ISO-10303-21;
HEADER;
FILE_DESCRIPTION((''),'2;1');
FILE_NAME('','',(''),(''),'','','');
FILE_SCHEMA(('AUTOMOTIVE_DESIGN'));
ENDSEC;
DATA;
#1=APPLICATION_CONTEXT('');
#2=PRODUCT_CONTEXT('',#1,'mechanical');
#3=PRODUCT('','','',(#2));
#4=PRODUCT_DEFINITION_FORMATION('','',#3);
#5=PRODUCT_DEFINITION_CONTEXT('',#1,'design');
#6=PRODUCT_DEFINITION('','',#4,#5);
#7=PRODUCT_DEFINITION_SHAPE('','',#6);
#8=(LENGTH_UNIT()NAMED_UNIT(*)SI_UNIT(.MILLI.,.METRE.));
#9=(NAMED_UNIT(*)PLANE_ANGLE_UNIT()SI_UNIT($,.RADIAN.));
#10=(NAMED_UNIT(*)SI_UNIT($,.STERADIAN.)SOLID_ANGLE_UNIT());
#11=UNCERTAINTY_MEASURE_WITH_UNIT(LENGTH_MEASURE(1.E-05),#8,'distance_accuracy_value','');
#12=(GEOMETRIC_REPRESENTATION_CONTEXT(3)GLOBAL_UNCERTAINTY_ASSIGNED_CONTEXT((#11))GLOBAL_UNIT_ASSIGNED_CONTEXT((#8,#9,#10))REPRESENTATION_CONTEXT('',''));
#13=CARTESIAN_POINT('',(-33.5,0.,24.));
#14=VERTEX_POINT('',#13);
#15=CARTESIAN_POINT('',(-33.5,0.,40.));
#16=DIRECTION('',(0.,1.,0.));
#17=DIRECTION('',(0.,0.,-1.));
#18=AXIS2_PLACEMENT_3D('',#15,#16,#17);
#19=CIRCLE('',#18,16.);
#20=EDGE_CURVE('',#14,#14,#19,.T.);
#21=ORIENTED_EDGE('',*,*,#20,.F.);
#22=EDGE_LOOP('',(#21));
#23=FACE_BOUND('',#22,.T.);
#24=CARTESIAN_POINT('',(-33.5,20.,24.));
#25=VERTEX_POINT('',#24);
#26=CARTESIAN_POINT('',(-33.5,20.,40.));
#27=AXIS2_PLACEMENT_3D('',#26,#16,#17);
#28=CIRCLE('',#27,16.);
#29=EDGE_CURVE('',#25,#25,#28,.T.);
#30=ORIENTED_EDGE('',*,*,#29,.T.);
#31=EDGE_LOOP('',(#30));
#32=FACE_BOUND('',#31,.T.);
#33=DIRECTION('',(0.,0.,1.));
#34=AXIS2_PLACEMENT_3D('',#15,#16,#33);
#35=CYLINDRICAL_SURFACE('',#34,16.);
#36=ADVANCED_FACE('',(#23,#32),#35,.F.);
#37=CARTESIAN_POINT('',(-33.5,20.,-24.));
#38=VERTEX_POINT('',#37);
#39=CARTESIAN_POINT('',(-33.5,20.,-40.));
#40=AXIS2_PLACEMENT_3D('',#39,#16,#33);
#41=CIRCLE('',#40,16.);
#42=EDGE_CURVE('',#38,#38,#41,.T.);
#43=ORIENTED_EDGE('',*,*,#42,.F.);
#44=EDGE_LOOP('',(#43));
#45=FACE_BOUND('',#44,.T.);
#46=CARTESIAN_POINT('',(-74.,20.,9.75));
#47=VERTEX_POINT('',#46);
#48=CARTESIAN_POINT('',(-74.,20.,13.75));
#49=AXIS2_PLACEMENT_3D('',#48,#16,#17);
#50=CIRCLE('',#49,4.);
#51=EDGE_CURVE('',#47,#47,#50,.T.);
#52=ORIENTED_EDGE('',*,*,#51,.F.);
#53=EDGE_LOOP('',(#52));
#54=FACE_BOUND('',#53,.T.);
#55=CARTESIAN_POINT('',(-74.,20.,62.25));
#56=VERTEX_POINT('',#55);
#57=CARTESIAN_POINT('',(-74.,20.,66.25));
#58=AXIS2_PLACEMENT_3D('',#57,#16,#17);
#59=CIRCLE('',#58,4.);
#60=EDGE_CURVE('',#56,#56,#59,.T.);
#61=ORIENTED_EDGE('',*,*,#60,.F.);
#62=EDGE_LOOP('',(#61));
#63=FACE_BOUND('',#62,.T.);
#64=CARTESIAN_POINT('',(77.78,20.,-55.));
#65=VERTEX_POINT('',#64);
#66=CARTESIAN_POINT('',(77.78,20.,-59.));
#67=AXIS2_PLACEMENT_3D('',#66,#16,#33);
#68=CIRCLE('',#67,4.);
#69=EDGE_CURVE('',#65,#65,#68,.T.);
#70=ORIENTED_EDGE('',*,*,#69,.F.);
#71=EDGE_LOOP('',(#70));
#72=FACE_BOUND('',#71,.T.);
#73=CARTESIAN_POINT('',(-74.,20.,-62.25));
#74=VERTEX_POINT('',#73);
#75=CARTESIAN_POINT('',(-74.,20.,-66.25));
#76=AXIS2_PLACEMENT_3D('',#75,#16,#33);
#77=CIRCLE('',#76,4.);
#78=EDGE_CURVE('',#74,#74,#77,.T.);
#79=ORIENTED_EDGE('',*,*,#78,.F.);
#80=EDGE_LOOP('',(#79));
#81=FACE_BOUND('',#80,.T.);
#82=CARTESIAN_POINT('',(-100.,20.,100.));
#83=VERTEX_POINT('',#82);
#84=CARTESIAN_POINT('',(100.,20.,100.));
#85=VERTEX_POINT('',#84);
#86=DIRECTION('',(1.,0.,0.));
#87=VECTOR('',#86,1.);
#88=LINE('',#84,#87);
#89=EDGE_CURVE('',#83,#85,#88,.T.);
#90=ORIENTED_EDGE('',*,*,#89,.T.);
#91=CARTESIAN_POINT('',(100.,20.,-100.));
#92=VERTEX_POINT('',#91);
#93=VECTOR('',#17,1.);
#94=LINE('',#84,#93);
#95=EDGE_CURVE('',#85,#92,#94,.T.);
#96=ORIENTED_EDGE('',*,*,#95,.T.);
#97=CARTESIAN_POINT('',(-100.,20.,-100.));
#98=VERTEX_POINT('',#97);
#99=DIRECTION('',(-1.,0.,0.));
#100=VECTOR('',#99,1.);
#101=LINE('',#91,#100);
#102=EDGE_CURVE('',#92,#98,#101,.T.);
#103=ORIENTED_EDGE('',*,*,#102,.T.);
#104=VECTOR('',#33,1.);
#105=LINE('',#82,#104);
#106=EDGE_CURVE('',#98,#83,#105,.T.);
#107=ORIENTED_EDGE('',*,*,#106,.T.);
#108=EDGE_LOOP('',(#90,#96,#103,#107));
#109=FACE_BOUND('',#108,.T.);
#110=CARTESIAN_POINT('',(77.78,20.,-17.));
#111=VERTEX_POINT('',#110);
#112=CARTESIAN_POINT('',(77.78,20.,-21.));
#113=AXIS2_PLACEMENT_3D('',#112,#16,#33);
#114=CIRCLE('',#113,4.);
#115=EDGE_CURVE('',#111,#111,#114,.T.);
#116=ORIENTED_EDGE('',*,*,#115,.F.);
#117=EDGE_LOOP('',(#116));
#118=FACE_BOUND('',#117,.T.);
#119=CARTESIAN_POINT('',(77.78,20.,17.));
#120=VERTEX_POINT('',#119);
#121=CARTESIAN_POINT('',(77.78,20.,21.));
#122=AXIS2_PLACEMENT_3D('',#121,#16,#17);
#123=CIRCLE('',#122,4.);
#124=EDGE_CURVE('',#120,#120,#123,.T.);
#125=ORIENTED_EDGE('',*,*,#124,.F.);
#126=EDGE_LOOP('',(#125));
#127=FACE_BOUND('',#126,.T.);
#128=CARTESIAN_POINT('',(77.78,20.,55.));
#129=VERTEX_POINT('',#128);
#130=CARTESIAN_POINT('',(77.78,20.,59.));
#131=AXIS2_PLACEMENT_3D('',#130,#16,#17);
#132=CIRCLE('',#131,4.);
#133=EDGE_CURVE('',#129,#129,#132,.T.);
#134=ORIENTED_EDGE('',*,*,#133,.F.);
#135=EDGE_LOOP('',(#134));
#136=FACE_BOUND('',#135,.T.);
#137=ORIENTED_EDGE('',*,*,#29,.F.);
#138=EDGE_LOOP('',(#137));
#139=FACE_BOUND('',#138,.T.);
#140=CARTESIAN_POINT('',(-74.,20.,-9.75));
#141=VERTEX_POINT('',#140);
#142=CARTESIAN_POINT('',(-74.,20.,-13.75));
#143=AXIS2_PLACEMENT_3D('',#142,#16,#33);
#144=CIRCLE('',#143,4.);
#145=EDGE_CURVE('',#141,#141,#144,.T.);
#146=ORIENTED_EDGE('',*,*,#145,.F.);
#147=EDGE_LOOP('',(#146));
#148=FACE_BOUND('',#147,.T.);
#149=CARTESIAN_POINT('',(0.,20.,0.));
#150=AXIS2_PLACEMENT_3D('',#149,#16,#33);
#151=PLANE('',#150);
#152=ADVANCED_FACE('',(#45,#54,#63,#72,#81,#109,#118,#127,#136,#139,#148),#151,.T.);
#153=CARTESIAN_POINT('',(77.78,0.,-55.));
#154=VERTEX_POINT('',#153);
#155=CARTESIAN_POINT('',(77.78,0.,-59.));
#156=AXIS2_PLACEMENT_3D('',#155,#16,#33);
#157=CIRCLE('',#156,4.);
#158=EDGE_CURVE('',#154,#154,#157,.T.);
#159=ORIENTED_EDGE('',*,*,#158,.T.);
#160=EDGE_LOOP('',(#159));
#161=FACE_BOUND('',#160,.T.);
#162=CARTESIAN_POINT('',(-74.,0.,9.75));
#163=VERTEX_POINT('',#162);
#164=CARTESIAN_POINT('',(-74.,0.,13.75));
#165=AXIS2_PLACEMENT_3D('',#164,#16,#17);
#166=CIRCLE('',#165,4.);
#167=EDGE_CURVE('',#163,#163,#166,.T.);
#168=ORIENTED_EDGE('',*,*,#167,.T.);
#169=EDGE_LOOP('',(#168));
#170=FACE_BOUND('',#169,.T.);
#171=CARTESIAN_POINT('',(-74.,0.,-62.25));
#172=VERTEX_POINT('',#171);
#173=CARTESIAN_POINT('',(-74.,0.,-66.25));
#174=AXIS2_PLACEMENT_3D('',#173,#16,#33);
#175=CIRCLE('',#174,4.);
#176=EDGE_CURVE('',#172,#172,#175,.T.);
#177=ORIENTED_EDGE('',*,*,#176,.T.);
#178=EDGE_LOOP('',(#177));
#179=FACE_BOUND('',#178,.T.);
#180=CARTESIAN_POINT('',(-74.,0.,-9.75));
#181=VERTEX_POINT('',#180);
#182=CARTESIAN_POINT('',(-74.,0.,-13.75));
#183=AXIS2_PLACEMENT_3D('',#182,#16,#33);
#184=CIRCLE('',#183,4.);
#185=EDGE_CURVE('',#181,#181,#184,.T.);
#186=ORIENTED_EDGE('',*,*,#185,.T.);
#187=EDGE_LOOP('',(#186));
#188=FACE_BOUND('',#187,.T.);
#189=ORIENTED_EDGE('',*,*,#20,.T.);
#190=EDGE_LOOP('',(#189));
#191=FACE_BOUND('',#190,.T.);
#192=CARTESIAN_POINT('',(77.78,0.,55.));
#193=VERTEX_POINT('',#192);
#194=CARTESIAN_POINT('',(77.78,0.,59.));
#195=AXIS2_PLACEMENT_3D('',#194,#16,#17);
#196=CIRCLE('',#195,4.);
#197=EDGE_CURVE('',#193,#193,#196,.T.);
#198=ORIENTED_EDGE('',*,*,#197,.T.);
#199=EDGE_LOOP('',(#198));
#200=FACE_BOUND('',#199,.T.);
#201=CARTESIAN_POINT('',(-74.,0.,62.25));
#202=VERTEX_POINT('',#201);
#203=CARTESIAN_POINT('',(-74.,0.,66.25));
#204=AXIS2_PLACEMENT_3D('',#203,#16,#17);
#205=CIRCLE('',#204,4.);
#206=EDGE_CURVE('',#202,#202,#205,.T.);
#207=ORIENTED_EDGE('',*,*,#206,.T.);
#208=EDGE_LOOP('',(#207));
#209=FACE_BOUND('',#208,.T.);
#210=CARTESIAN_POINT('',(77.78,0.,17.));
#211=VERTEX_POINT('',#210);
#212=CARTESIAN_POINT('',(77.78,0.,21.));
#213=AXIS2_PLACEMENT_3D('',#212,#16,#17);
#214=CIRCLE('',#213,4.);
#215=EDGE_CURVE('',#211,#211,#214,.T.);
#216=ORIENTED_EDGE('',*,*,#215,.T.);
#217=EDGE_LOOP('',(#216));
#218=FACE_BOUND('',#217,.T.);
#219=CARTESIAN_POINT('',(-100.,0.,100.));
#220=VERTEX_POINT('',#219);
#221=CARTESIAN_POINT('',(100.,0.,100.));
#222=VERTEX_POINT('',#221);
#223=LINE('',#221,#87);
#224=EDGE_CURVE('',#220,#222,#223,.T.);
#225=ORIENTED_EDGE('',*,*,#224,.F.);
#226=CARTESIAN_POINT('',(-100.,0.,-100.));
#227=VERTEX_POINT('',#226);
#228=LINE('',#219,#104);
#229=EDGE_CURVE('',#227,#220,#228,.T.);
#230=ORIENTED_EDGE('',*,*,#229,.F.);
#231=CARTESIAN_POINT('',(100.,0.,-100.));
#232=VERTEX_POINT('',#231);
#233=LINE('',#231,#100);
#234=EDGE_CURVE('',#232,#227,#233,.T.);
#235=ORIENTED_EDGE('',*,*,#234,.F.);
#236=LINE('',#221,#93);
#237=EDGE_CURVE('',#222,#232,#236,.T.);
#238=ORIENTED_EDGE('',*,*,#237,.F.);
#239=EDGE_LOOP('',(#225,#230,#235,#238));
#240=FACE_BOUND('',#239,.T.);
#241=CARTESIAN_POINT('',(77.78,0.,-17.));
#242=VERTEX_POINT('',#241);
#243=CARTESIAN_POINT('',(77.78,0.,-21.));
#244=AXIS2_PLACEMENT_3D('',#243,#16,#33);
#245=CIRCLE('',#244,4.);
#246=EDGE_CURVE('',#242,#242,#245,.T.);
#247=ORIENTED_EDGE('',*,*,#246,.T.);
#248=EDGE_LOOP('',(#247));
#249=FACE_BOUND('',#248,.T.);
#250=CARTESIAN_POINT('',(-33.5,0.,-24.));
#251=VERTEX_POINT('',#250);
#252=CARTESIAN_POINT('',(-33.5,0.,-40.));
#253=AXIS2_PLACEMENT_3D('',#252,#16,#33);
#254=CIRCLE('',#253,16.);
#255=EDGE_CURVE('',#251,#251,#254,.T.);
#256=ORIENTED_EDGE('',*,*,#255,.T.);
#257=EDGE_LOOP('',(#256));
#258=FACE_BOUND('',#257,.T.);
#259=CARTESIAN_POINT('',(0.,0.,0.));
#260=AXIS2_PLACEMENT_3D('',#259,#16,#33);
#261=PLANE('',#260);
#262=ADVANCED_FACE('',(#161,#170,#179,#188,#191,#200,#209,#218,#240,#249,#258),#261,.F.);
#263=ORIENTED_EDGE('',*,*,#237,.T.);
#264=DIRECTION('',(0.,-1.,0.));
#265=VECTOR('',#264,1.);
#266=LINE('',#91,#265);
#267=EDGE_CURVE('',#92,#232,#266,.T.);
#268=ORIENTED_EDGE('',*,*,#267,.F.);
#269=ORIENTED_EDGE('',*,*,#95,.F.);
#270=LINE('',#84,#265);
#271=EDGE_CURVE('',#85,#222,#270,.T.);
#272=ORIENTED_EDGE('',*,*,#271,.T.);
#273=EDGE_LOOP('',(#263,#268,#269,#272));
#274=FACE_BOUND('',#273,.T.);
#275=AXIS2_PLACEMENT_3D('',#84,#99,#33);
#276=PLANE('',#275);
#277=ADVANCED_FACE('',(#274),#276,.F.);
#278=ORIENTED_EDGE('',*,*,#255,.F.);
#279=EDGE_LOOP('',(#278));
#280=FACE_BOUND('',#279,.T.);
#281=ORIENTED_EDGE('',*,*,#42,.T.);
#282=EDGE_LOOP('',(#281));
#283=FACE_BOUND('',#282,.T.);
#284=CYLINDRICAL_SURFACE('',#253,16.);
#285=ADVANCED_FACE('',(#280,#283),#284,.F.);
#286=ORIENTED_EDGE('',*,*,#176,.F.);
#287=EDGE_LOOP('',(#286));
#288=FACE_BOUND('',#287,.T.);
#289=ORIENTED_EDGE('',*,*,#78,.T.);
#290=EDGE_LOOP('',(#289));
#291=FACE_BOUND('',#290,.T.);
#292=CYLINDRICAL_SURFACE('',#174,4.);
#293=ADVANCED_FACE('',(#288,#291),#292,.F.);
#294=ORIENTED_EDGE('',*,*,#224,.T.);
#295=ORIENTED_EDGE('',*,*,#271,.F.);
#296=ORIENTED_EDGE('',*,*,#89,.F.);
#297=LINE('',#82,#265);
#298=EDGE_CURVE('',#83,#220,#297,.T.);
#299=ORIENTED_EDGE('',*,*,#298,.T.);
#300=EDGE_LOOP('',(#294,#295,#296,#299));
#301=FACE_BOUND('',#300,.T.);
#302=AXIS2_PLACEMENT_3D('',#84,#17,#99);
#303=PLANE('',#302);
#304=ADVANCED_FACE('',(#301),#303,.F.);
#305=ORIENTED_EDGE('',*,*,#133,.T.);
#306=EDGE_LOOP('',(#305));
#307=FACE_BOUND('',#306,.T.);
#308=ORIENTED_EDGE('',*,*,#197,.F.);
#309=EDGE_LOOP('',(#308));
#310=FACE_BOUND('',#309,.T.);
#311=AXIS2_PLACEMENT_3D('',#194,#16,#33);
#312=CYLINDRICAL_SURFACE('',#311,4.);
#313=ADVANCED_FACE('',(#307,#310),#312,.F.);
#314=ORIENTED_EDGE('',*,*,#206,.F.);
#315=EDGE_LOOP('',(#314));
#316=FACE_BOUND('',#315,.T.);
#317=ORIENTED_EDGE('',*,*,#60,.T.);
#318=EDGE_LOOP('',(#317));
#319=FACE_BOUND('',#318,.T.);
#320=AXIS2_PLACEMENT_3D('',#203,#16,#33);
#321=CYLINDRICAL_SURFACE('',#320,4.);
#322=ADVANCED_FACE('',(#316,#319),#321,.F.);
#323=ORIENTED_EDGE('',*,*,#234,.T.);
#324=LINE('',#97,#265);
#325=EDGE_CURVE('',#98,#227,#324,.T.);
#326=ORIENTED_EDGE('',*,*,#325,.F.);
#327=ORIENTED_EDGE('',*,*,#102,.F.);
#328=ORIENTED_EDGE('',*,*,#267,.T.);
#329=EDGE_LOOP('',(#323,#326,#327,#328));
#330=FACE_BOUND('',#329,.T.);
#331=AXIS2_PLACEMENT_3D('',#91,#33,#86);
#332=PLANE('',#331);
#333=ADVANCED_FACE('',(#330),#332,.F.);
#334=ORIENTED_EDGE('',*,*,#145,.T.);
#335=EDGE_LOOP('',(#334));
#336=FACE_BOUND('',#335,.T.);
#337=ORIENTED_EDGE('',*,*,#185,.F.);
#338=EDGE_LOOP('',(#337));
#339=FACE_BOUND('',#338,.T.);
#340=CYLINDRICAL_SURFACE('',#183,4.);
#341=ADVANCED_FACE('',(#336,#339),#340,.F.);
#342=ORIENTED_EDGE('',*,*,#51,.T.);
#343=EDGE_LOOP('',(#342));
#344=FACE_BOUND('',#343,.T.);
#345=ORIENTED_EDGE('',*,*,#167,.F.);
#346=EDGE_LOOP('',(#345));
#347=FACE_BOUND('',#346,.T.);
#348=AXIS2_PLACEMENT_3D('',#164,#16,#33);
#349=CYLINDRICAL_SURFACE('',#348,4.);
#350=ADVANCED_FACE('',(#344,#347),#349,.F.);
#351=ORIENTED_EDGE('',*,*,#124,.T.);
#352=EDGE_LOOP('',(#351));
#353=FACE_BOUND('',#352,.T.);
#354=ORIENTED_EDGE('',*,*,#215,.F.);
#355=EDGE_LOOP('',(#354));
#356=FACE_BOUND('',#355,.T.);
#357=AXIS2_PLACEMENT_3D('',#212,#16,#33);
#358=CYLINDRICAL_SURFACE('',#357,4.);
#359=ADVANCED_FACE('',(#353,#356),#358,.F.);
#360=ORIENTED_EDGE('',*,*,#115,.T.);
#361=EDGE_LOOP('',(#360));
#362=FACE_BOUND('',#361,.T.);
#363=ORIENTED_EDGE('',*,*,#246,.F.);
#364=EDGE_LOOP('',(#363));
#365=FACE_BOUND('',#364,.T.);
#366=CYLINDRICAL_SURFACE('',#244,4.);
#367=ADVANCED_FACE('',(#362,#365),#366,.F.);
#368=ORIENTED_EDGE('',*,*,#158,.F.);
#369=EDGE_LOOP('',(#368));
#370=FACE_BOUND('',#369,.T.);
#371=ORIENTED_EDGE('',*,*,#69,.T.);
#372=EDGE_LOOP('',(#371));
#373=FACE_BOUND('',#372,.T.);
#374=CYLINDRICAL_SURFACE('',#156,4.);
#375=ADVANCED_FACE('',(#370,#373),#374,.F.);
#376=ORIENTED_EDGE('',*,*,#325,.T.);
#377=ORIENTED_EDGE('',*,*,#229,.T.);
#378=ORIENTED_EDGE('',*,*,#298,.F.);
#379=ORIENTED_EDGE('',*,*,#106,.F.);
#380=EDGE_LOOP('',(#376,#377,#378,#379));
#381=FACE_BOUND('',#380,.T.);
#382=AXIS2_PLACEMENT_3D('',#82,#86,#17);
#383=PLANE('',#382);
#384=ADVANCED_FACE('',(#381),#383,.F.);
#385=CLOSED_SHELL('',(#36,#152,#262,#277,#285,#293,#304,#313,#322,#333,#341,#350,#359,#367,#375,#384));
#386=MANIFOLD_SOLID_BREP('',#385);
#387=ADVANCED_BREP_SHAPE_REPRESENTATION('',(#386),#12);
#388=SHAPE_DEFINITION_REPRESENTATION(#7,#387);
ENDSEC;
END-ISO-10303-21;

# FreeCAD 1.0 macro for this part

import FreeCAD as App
import Part
import Sketcher
from FreeCAD import Vector

doc = App.newDocument("Part")
body = doc.addObject("PartDesign::Body", "Body")

# Sketch on XZ plane
sketch1 = body.newObject("Sketcher::SketchObject", "Sketch")
sketch1.AttachmentSupport = (doc.getObject("XZ_Plane"), [""])
sketch1.MapMode = "FlatFace"
sketch1.addGeometry([
    Part.LineSegment(Vector(-100, -100, 0), Vector(-100, 100, 0)),
    Part.LineSegment(Vector(-100, 100, 0), Vector(100, 100, 0)),
    Part.LineSegment(Vector(100, 100, 0), Vector(100, -100, 0)),
    Part.LineSegment(Vector(100, -100, 0), Vector(-100, -100, 0)),
], False)
sketch1.addConstraint([
    Sketcher.Constraint("Coincident", 0, 2, 1, 1),
    Sketcher.Constraint("Coincident", 1, 2, 2, 1),
    Sketcher.Constraint("Coincident", 2, 2, 3, 1),
    Sketcher.Constraint("Coincident", 3, 2, 0, 1),
    Sketcher.Constraint("Vertical", 0),
    Sketcher.Constraint("Horizontal", 1),
    Sketcher.Constraint("Vertical", 2),
    Sketcher.Constraint("Horizontal", 3),
    Sketcher.Constraint("Symmetric", 0, 2, 2, 2, -1, 1),
    Sketcher.Constraint("Equal", 3, 0),
    Sketcher.Constraint("DistanceX", 1, 1, 1, 2, 200.0),
])
pad1 = body.newObject("PartDesign::Pad", "Pad")
pad1.Profile = sketch1
pad1.Length = 20
pad1.Reversed = True

# Sketch on XZ plane
sketch2 = body.newObject("Sketcher::SketchObject", "Sketch001")
sketch2.AttachmentSupport = (doc.getObject("XZ_Plane"), [""])
sketch2.MapMode = "FlatFace"
sketch2.AttachmentOffset = App.Placement(Vector(0, 0, -20), App.Rotation())
sketch2.addGeometry([
    Part.Circle(Vector(-33.5, -40, 0), Vector(0, 0, 1), 16),  # 0
    Part.Circle(Vector(-74, -66.2, 0), Vector(0, 0, 1), 4),  # 1
    Part.Circle(Vector(-74, -13.8, 0), Vector(0, 0, 1), 4),  # 2
    Part.Circle(Vector(77.8, -59, 0), Vector(0, 0, 1), 4),  # 3
    Part.Circle(Vector(77.8, -21, 0), Vector(0, 0, 1), 4),  # 4
    Part.Circle(Vector(77.8, 21, 0), Vector(0, 0, 1), 4),  # 5
    Part.Circle(Vector(77.8, 59, 0), Vector(0, 0, 1), 4),  # 6
    Part.Circle(Vector(-74, 13.8, 0), Vector(0, 0, 1), 4),  # 7
    Part.Circle(Vector(-74, 66.2, 0), Vector(0, 0, 1), 4),  # 8
    Part.Circle(Vector(-33.5, 40, 0), Vector(0, 0, 1), 16),  # 9
], False)
sketch2.addConstraint([
    Sketcher.Constraint("Equal", 1, 2),
    Sketcher.Constraint("Equal", 2, 3),
    Sketcher.Constraint("Equal", 3, 4),
    Sketcher.Constraint("Equal", 4, 5),
    Sketcher.Constraint("Equal", 5, 6),
    Sketcher.Constraint("Equal", 6, 7),
    Sketcher.Constraint("Equal", 7, 8),
    Sketcher.Constraint("Equal", 0, 9),
    Sketcher.Constraint("Symmetric", 4, 3, 5, 3, -1),
    Sketcher.Constraint("Symmetric", 3, 3, 6, 3, -1),
    Sketcher.Constraint("Symmetric", 2, 3, 7, 3, -1),
    Sketcher.Constraint("Symmetric", 1, 3, 8, 3, -1),
    Sketcher.Constraint("Symmetric", 0, 3, 9, 3, -1),
    Sketcher.Constraint("Vertical", 1, 3, 2, 3),
    Sketcher.Constraint("Vertical", 3, 3, 4, 3),
    Sketcher.Constraint("Diameter", 0, 32.0),
    Sketcher.Constraint("Diameter", 1, 8.0),
    Sketcher.Constraint("DistanceY", 0, 3, -1, 1, 40.0),
    Sketcher.Constraint("DistanceX", 1, 3, -1, 1, 74.0),
    Sketcher.Constraint("DistanceY", 3, 3, -1, 1, 59.0),
    Sketcher.Constraint("DistanceY", 4, 3, -1, 1, 21.0),
    Sketcher.Constraint("DistanceY", 1, 3, 7, 3, 80.0),
    Sketcher.Constraint("DistanceX", 0, 3, -1, 1, 33.5),
    Sketcher.Constraint("DistanceY", 1, 3, 2, 3, 52.5),
    Sketcher.Constraint("DistanceX", -1, 1, 3, 3, 77.78),
])
pocket1 = body.newObject("PartDesign::Pocket", "Pocket")
pocket1.Profile = sketch2
pocket1.Type = "ThroughAll"
pocket1.Reversed = True

doc.recompute()
